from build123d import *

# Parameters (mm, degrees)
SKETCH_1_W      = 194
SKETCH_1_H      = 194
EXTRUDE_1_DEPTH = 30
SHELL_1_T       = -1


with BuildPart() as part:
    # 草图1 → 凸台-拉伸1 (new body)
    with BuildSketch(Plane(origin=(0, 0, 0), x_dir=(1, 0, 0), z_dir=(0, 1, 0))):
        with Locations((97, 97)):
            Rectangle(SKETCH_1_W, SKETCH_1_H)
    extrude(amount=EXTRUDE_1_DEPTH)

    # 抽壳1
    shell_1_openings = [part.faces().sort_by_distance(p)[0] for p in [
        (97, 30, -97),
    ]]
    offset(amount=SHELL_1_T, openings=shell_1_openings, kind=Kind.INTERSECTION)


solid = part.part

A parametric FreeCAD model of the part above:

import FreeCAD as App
import Part
import Sketcher


def faces_at(feature, points):
    """Names of the faces that lie closest to the given points."""
    faces = feature.Shape.Faces
    near = lambda p: min(range(len(faces)), key=lambda i: faces[i].distToShape(Part.Vertex(*p))[0])
    return sorted({f"Face{near(p) + 1}" for p in points})


def add_polygon(sketch, points):
    """Adds a closed chain of lines whose ends are joined by coincident constraints."""
    first, n = sketch.GeometryCount, len(points)
    for a, b in zip(points, points[1:] + points[:1]):
        sketch.addGeometry(Part.LineSegment(App.Vector(*a, 0), App.Vector(*b, 0)), False)
    for i in range(n):
        sketch.addConstraint(Sketcher.Constraint("Coincident", first + i, 2, first + (i + 1) % n, 1))

doc = App.newDocument("Part")
body = doc.addObject("PartDesign::Body", "Body")

sketch1 = body.newObject("Sketcher::SketchObject", "Sketch")
sketch1.AttachmentSupport = (doc.getObject("XZ_Plane"), [""])
sketch1.MapMode = "FlatFace"
add_polygon(sketch1, [(0, -194), (0, 0), (194, 0), (194, -194)])
sketch1.addConstraint(Sketcher.Constraint("Vertical", 0))
sketch1.addConstraint(Sketcher.Constraint("Horizontal", 1))
sketch1.addConstraint(Sketcher.Constraint("Vertical", 2))
sketch1.addConstraint(Sketcher.Constraint("Horizontal", 3))
sketch1.addConstraint(Sketcher.Constraint("Coincident", 0, 2, -1, 1))
sketch1.addConstraint(Sketcher.Constraint("Equal", 3, 0))
sketch1.addConstraint(Sketcher.Constraint("DistanceX", 1, 1, 1, 2, 194.0))
pad1 = body.newObject("PartDesign::Pad", "Pad")
pad1.Profile = sketch1
pad1.Length = 30
pad1.Reversed = True
doc.recompute()

thickness = body.newObject("PartDesign::Thickness", "Thickness")
thickness.Base = (pad1, faces_at(pad1, [(97, 30, -97)]))
thickness.Value = 1
thickness.Reversed = True
thickness.Join = "Intersection"

doc.recompute()
